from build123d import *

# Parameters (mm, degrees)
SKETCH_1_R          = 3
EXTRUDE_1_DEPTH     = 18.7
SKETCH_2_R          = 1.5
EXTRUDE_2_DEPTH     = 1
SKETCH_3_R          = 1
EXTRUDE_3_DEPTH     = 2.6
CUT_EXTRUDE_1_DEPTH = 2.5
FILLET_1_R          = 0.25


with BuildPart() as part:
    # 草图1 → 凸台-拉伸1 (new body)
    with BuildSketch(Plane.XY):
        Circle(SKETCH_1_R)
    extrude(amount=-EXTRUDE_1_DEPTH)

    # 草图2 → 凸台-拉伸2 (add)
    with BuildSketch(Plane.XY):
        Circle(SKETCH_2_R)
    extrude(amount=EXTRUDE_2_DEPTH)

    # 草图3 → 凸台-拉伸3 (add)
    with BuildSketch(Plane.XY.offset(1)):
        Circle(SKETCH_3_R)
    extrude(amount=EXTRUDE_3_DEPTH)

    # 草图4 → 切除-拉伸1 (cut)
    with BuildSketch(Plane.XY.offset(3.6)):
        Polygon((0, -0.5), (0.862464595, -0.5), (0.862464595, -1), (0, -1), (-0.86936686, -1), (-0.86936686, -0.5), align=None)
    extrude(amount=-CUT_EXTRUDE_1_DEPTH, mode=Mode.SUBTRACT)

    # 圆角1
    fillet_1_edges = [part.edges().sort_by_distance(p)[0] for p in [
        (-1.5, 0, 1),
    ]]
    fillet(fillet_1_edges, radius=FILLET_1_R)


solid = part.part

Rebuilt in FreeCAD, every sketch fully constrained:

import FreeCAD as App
import Part
import Sketcher

V = App.Vector


def edges_at(feature, points):
    """Names of the edges that pass closest to the given points."""
    edges = feature.Shape.Edges
    near = lambda p: min(range(len(edges)), key=lambda i: edges[i].distToShape(Part.Vertex(*p))[0])
    return sorted({f"Edge{near(p) + 1}" for p in points})


def add_polygon(sketch, points):
    """Adds a closed chain of lines whose ends are joined by coincident constraints."""
    first, n = sketch.GeometryCount, len(points)
    for a, b in zip(points, points[1:] + points[:1]):
        sketch.addGeometry(Part.LineSegment(App.Vector(*a, 0), App.Vector(*b, 0)), False)
    for i in range(n):
        sketch.addConstraint(Sketcher.Constraint("Coincident", first + i, 2, first + (i + 1) % n, 1))

doc = App.newDocument("Part")
body = doc.addObject("PartDesign::Body", "Body")

sketch1 = body.newObject("Sketcher::SketchObject", "Sketch")
sketch1.AttachmentSupport = (doc.getObject("XY_Plane"), [""])
sketch1.MapMode = "FlatFace"
sketch1.addGeometry(Part.Circle(V(0, 0, 0), V(0, 0, 1), 3), False)
sketch1.addConstraint(Sketcher.Constraint("Coincident", 0, 3, -1, 1))
sketch1.addConstraint(Sketcher.Constraint("Diameter", 0, 6.0))
pad1 = body.newObject("PartDesign::Pad", "Pad")
pad1.Profile = sketch1
pad1.Length = 18.7
pad1.Reversed = True

sketch2 = body.newObject("Sketcher::SketchObject", "Sketch001")
sketch2.AttachmentSupport = (doc.getObject("XY_Plane"), [""])
sketch2.MapMode = "FlatFace"
sketch2.addGeometry(Part.Circle(V(0, 0, 0), V(0, 0, 1), 1.5), False)
sketch2.addConstraint(Sketcher.Constraint("Coincident", 0, 3, -1, 1))
sketch2.addConstraint(Sketcher.Constraint("Diameter", 0, 3.0))
pad2 = body.newObject("PartDesign::Pad", "Pad001")
pad2.Profile = sketch2
pad2.Length = 1

sketch3 = body.newObject("Sketcher::SketchObject", "Sketch002")
sketch3.AttachmentSupport = (doc.getObject("XY_Plane"), [""])
sketch3.MapMode = "FlatFace"
sketch3.AttachmentOffset = App.Placement(V(0, 0, 1), App.Rotation())
sketch3.addGeometry(Part.Circle(V(0, 0, 0), V(0, 0, 1), 1), False)
sketch3.addConstraint(Sketcher.Constraint("Coincident", 0, 3, -1, 1))
sketch3.addConstraint(Sketcher.Constraint("Diameter", 0, 2.0))
pad3 = body.newObject("PartDesign::Pad", "Pad002")
pad3.Profile = sketch3
pad3.Length = 2.6

sketch4 = body.newObject("Sketcher::SketchObject", "Sketch003")
sketch4.AttachmentSupport = (doc.getObject("XY_Plane"), [""])
sketch4.MapMode = "FlatFace"
sketch4.AttachmentOffset = App.Placement(V(0, 0, 3.6), App.Rotation())
add_polygon(sketch4, [(0.9, -0.5), (-0.9, -0.5), (-0.9, -1), (0.9, -1)])
sketch4.addConstraint(Sketcher.Constraint("Horizontal", 0))
sketch4.addConstraint(Sketcher.Constraint("Vertical", 1))
sketch4.addConstraint(Sketcher.Constraint("Horizontal", 2))
sketch4.addConstraint(Sketcher.Constraint("Vertical", 3))
sketch4.addConstraint(Sketcher.Constraint("DistanceY", 1, 2, 1, 1, 0.5))
sketch4.addConstraint(Sketcher.Constraint("DistanceY", 1, 2, -1, 1, 1.0))
sketch4.addConstraint(Sketcher.Constraint("DistanceX", 0, 2, 0, 1, 1.731831))
sketch4.addConstraint(Sketcher.Constraint("DistanceX", 0, 2, -1, 1, 0.869367))
pocket1 = body.newObject("PartDesign::Pocket", "Pocket")
pocket1.Profile = sketch4
pocket1.Length = 2.5
doc.recompute()

fillet = body.newObject("PartDesign::Fillet", "Fillet")
fillet.Base = (pocket1, edges_at(pocket1, [(-1.5, 0, 1)]))
fillet.Radius = 0.25

doc.recompute()
